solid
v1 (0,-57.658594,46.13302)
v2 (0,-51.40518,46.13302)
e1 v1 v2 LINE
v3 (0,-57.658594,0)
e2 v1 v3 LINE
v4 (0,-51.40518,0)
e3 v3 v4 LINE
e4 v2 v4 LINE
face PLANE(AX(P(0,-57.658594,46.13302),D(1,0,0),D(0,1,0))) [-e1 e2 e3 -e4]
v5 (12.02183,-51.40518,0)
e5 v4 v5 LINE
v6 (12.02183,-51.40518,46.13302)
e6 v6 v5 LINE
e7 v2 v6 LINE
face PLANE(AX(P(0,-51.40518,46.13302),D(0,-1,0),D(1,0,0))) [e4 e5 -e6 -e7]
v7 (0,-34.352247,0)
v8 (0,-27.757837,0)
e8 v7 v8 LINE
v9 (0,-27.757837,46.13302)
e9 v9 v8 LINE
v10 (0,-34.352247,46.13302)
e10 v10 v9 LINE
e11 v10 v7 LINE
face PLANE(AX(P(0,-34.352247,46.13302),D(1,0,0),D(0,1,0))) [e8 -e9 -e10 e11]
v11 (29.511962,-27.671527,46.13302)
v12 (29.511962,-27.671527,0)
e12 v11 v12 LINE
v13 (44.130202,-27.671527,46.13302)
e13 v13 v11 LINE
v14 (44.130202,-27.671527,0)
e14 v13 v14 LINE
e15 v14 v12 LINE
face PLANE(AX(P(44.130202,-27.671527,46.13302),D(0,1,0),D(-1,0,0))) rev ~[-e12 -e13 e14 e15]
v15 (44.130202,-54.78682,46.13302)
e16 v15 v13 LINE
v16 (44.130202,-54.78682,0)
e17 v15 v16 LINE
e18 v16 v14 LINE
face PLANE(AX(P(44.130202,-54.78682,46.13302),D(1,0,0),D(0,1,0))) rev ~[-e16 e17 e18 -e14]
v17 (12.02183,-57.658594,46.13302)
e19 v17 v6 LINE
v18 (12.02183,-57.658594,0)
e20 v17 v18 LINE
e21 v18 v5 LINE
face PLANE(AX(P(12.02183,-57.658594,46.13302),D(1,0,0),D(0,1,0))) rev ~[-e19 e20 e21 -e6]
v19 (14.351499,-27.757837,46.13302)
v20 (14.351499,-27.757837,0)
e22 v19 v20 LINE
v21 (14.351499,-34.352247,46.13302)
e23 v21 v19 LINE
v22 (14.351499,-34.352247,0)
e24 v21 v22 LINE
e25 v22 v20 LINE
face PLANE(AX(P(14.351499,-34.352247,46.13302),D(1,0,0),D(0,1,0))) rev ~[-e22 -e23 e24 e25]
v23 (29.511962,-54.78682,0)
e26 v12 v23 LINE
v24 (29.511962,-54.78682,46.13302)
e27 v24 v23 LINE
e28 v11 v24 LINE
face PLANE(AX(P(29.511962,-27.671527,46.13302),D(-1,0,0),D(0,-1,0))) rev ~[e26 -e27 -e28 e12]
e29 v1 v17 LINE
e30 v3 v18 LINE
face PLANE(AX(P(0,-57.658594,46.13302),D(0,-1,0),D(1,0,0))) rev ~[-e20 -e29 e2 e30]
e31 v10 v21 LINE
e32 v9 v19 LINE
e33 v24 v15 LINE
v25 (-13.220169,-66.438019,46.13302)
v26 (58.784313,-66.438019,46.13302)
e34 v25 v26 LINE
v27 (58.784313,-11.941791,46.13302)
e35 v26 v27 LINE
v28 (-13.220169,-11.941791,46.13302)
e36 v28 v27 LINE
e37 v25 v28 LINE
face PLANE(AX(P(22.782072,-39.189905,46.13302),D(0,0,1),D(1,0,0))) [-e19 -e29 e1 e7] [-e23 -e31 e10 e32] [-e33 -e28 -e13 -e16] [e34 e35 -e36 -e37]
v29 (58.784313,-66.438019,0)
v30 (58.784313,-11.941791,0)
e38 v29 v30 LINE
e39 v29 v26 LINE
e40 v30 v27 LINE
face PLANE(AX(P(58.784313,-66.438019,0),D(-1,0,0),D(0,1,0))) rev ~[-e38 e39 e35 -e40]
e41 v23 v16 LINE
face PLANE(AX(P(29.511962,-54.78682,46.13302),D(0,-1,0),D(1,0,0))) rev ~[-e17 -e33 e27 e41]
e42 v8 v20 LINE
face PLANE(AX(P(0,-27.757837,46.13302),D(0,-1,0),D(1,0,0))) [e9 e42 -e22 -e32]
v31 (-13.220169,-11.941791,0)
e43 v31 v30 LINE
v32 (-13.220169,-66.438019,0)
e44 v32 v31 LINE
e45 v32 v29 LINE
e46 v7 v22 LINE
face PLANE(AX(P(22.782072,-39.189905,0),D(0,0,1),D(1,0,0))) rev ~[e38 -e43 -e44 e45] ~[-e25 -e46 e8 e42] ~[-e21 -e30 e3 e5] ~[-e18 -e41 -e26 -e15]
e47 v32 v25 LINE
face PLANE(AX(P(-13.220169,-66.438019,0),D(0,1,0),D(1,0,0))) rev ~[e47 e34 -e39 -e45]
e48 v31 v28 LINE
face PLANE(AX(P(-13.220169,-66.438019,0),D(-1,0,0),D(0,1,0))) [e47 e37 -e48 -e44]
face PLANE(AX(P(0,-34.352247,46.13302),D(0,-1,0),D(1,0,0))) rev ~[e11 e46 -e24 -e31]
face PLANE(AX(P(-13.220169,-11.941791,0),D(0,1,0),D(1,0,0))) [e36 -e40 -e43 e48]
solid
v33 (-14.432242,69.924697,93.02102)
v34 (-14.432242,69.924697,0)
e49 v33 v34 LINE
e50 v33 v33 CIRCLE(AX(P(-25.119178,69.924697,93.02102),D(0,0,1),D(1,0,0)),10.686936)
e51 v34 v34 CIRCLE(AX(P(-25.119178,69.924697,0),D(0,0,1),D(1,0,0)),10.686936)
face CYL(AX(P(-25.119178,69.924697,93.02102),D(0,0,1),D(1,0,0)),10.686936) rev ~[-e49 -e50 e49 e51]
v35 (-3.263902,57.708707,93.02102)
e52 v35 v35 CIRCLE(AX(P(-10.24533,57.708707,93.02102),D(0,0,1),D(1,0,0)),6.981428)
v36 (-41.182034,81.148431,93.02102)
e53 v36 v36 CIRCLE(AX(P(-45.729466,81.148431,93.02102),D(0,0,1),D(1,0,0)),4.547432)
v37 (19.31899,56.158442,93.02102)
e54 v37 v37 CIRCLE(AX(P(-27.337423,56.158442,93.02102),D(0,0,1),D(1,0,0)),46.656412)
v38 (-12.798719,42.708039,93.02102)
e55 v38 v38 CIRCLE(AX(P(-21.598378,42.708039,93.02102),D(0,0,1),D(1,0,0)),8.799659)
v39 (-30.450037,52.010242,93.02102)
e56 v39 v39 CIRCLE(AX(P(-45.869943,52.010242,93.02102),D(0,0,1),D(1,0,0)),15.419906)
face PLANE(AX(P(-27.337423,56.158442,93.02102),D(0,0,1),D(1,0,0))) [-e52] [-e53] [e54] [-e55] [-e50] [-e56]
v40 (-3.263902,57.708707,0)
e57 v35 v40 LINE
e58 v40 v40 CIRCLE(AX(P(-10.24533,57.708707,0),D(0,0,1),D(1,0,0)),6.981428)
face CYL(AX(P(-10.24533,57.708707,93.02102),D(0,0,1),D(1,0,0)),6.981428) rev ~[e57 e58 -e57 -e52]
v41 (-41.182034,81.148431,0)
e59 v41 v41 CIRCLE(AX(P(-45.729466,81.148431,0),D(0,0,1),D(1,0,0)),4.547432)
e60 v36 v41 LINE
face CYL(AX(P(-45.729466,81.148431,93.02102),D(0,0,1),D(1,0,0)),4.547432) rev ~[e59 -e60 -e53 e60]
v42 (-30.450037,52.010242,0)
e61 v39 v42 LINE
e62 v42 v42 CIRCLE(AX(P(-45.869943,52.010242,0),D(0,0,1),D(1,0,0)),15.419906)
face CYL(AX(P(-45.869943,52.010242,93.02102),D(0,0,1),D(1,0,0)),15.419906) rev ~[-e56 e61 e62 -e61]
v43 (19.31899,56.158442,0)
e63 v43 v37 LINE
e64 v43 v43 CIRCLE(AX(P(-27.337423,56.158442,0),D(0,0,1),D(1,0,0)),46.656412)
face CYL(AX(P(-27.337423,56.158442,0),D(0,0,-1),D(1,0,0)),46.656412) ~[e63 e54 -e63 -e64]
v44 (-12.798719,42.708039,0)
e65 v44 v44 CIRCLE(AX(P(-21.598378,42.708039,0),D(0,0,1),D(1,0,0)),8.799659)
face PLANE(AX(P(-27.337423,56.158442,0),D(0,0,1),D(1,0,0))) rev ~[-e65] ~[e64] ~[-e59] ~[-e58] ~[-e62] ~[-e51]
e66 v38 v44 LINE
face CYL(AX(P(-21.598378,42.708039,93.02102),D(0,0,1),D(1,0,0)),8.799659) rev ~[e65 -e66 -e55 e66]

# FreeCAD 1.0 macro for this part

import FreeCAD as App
import Part
import Sketcher

V = App.Vector
Q = App.Units.Quantity

doc = App.newDocument("Part")
body = doc.addObject("PartDesign::Body", "Body")

sketch1 = doc.addObject("Sketcher::SketchObject", "Sketch")
body.addObject(sketch1)
sketch1.AttachmentSupport = (doc.XY_Plane, [""])
sketch1.MapMode = "FlatFace"
sketch1.addGeometry(Part.Circle(V(-27.337423, 56.158442, 0), V(0, 0, 1), 46.656412), False)
sketch1.addConstraint(Sketcher.Constraint("Diameter", 0, Q("93.312825 mm")))
sketch1.addConstraint(Sketcher.Constraint("DistanceX", 0, 3, -1, 1, Q("27.337423 mm")))
sketch1.addConstraint(Sketcher.Constraint("DistanceY", -1, 1, 0, 3, Q("56.158442 mm")))
pad1 = doc.addObject("PartDesign::Pad", "Pad")
body.addObject(pad1)
pad1.Profile = sketch1
pad1.Length = 93.02102

sketch2 = doc.addObject("Sketcher::SketchObject", "Sketch001")
body.addObject(sketch2)
sketch2.AttachmentSupport = (doc.XY_Plane, [""])
sketch2.MapMode = "FlatFace"
sketch2.AttachmentOffset = App.Placement(V(0, 0, 93.02102), App.Rotation())
sketch2.addGeometry(Part.Circle(V(-45.869943, 52.010242, 0), V(0, 0, 1), 15.419906), False)
sketch2.addGeometry(Part.Circle(V(-21.598378, 42.708039, 0), V(0, 0, 1), 8.799659), False)
sketch2.addGeometry(Part.Circle(V(-25.119178, 69.924697, 0), V(0, 0, 1), 10.686936), False)
sketch2.addGeometry(Part.Circle(V(-10.24533, 57.708707, 0), V(0, 0, 1), 6.981428), False)
sketch2.addGeometry(Part.Circle(V(-45.729466, 81.148431, 0), V(0, 0, 1), 4.547432), False)
sketch2.addConstraint(Sketcher.Constraint("Diameter", 0, Q("30.839812 mm")))
sketch2.addConstraint(Sketcher.Constraint("Diameter", 1, Q("17.599318 mm")))
sketch2.addConstraint(Sketcher.Constraint("Diameter", 2, Q("21.373873 mm")))
sketch2.addConstraint(Sketcher.Constraint("Diameter", 3, Q("13.962856 mm")))
sketch2.addConstraint(Sketcher.Constraint("Diameter", 4, Q("9.094864 mm")))
sketch2.addConstraint(Sketcher.Constraint("DistanceX", 2, 3, 1, 3, Q("3.5208 mm")))
sketch2.addConstraint(Sketcher.Constraint("DistanceY", -1, 1, 0, 3, Q("52.010242 mm")))
sketch2.addConstraint(Sketcher.Constraint("DistanceX", 1, 3, -1, 1, Q("21.598378 mm")))
sketch2.addConstraint(Sketcher.Constraint("DistanceY", -1, 1, 1, 3, Q("42.708039 mm")))
sketch2.addConstraint(Sketcher.Constraint("DistanceX", 3, 3, -1, 1, Q("10.24533 mm")))
sketch2.addConstraint(Sketcher.Constraint("DistanceY", -1, 1, 4, 3, Q("81.148431 mm")))
sketch2.addConstraint(Sketcher.Constraint("DistanceY", 3, 3, 2, 3, Q("12.215991 mm")))
sketch2.addConstraint(Sketcher.Constraint("DistanceX", 0, 3, -1, 1, Q("45.869943 mm")))
sketch2.addConstraint(Sketcher.Constraint("DistanceY", -1, 1, 2, 3, Q("69.924697 mm")))
sketch2.addConstraint(Sketcher.Constraint("DistanceX", 4, 3, -1, 1, Q("45.729466 mm")))
pocket1 = doc.addObject("PartDesign::Pocket", "Pocket")
body.addObject(pocket1)
pocket1.Profile = sketch2
pocket1.Type = "ThroughAll"
body2 = doc.addObject("PartDesign::Body", "Body001")

sketch3 = doc.addObject("Sketcher::SketchObject", "Sketch002")
body2.addObject(sketch3)
sketch3.AttachmentSupport = (doc.getObject("XY_Plane001"), [""])
sketch3.MapMode = "FlatFace"
sketch3.addGeometry(Part.LineSegment(V(-13.220169, -11.941791, 0), V(-13.220169, -66.438019, 0)), False)
sketch3.addGeometry(Part.LineSegment(V(-13.220169, -66.438019, 0), V(58.784314, -66.438019, 0)), False)
sketch3.addGeometry(Part.LineSegment(V(58.784314, -66.438019, 0), V(58.784314, -11.941791, 0)), False)
sketch3.addGeometry(Part.LineSegment(V(58.784314, -11.941791, 0), V(-13.220169, -11.941791, 0)), False)
sketch3.addConstraint(Sketcher.Constraint("Coincident", 0, 2, 1, 1))
sketch3.addConstraint(Sketcher.Constraint("Coincident", 1, 2, 2, 1))
sketch3.addConstraint(Sketcher.Constraint("Coincident", 2, 2, 3, 1))
sketch3.addConstraint(Sketcher.Constraint("Coincident", 3, 2, 0, 1))
sketch3.addConstraint(Sketcher.Constraint("Vertical", 0))
sketch3.addConstraint(Sketcher.Constraint("Horizontal", 1))
sketch3.addConstraint(Sketcher.Constraint("Vertical", 2))
sketch3.addConstraint(Sketcher.Constraint("Horizontal", 3))
sketch3.addConstraint(Sketcher.Constraint("DistanceY", 0, 2, 0, 1, Q("54.496229 mm")))
sketch3.addConstraint(Sketcher.Constraint("DistanceX", 1, 1, 1, 2, Q("72.004482 mm")))
sketch3.addConstraint(Sketcher.Constraint("DistanceX", 0, 2, -1, 1, Q("13.220169 mm")))
sketch3.addConstraint(Sketcher.Constraint("DistanceY", 0, 2, -1, 1, Q("66.438019 mm")))
pad2 = doc.addObject("PartDesign::Pad", "Pad001")
body2.addObject(pad2)
pad2.Profile = sketch3
pad2.Length = 46.13302

sketch4 = doc.addObject("Sketcher::SketchObject", "Sketch003")
body2.addObject(sketch4)
sketch4.AttachmentSupport = (doc.getObject("XY_Plane001"), [""])
sketch4.MapMode = "FlatFace"
sketch4.AttachmentOffset = App.Placement(V(0, 0, 46.13302), App.Rotation())
sketch4.addGeometry(Part.LineSegment(V(0, -51.40518, 0), V(0, -57.658594, 0)), False)
sketch4.addGeometry(Part.LineSegment(V(0, -57.658594, 0), V(12.02183, -57.658594, 0)), False)
sketch4.addGeometry(Part.LineSegment(V(12.02183, -57.658594, 0), V(12.02183, -51.40518, 0)), False)
sketch4.addGeometry(Part.LineSegment(V(12.02183, -51.40518, 0), V(0, -51.40518, 0)), False)
sketch4.addGeometry(Part.LineSegment(V(0, -27.757837, 0), V(0, -34.352247, 0)), False)
sketch4.addGeometry(Part.LineSegment(V(0, -34.352247, 0), V(14.351499, -34.352247, 0)), False)
sketch4.addGeometry(Part.LineSegment(V(14.351499, -34.352247, 0), V(14.351499, -27.757837, 0)), False)
sketch4.addGeometry(Part.LineSegment(V(14.351499, -27.757837, 0), V(0, -27.757837, 0)), False)
sketch4.addGeometry(Part.LineSegment(V(29.511962, -54.78682, 0), V(44.130202, -54.78682, 0)), False)
sketch4.addGeometry(Part.LineSegment(V(44.130202, -54.78682, 0), V(44.130202, -27.671527, 0)), False)
sketch4.addGeometry(Part.LineSegment(V(44.130202, -27.671527, 0), V(29.511962, -27.671527, 0)), False)
sketch4.addGeometry(Part.LineSegment(V(29.511962, -27.671527, 0), V(29.511962, -54.78682, 0)), False)
sketch4.addConstraint(Sketcher.Constraint("Coincident", 0, 2, 1, 1))
sketch4.addConstraint(Sketcher.Constraint("Coincident", 1, 2, 2, 1))
sketch4.addConstraint(Sketcher.Constraint("Coincident", 2, 2, 3, 1))
sketch4.addConstraint(Sketcher.Constraint("Coincident", 3, 2, 0, 1))
sketch4.addConstraint(Sketcher.Constraint("Coincident", 4, 2, 5, 1))
sketch4.addConstraint(Sketcher.Constraint("Coincident", 5, 2, 6, 1))
sketch4.addConstraint(Sketcher.Constraint("Coincident", 6, 2, 7, 1))
sketch4.addConstraint(Sketcher.Constraint("Coincident", 7, 2, 4, 1))
sketch4.addConstraint(Sketcher.Constraint("Coincident", 8, 2, 9, 1))
sketch4.addConstraint(Sketcher.Constraint("Coincident", 9, 2, 10, 1))
sketch4.addConstraint(Sketcher.Constraint("Coincident", 10, 2, 11, 1))
sketch4.addConstraint(Sketcher.Constraint("Coincident", 11, 2, 8, 1))
sketch4.addConstraint(Sketcher.Constraint("Vertical", 0))
sketch4.addConstraint(Sketcher.Constraint("Horizontal", 1))
sketch4.addConstraint(Sketcher.Constraint("Vertical", 2))
sketch4.addConstraint(Sketcher.Constraint("Horizontal", 3))
sketch4.addConstraint(Sketcher.Constraint("Vertical", 4))
sketch4.addConstraint(Sketcher.Constraint("Horizontal", 5))
sketch4.addConstraint(Sketcher.Constraint("Vertical", 6))
sketch4.addConstraint(Sketcher.Constraint("Horizontal", 7))
sketch4.addConstraint(Sketcher.Constraint("Horizontal", 8))
sketch4.addConstraint(Sketcher.Constraint("Vertical", 9))
sketch4.addConstraint(Sketcher.Constraint("Horizontal", 10))
sketch4.addConstraint(Sketcher.Constraint("Vertical", 11))
sketch4.addConstraint(Sketcher.Constraint("PointOnObject", 0, 2, -2))
sketch4.addConstraint(Sketcher.Constraint("PointOnObject", 4, 2, -2))
sketch4.addConstraint(Sketcher.Constraint("DistanceX", 5, 1, 5, 2, Q("14.351499 mm")))
sketch4.addConstraint(Sketcher.Constraint("DistanceX", 1, 1, 1, 2, Q("12.02183 mm")))
sketch4.addConstraint(Sketcher.Constraint("DistanceX", 8, 1, 8, 2, Q("14.61824 mm")))
sketch4.addConstraint(Sketcher.Constraint("DistanceY", 4, 2, 4, 1, Q("6.59441 mm")))
sketch4.addConstraint(Sketcher.Constraint("DistanceY", 0, 2, 0, 1, Q("6.253414 mm")))
sketch4.addConstraint(Sketcher.Constraint("DistanceY", 9, 1, 9, 2, Q("27.115293 mm")))
sketch4.addConstraint(Sketcher.Constraint("DistanceY", 2, 2, -1, 1, Q("51.40518 mm")))
sketch4.addConstraint(Sketcher.Constraint("DistanceY", 8, 2, -1, 1, Q("54.78682 mm")))
sketch4.addConstraint(Sketcher.Constraint("DistanceY", 6, 2, 9, 2, Q("0.086309 mm")))
sketch4.addConstraint(Sketcher.Constraint("DistanceX", 2, 2, 10, 2, Q("17.490132 mm")))
pocket2 = doc.addObject("PartDesign::Pocket", "Pocket001")
body2.addObject(pocket2)
pocket2.Profile = sketch4
pocket2.Type = "ThroughAll"

doc.recompute()
